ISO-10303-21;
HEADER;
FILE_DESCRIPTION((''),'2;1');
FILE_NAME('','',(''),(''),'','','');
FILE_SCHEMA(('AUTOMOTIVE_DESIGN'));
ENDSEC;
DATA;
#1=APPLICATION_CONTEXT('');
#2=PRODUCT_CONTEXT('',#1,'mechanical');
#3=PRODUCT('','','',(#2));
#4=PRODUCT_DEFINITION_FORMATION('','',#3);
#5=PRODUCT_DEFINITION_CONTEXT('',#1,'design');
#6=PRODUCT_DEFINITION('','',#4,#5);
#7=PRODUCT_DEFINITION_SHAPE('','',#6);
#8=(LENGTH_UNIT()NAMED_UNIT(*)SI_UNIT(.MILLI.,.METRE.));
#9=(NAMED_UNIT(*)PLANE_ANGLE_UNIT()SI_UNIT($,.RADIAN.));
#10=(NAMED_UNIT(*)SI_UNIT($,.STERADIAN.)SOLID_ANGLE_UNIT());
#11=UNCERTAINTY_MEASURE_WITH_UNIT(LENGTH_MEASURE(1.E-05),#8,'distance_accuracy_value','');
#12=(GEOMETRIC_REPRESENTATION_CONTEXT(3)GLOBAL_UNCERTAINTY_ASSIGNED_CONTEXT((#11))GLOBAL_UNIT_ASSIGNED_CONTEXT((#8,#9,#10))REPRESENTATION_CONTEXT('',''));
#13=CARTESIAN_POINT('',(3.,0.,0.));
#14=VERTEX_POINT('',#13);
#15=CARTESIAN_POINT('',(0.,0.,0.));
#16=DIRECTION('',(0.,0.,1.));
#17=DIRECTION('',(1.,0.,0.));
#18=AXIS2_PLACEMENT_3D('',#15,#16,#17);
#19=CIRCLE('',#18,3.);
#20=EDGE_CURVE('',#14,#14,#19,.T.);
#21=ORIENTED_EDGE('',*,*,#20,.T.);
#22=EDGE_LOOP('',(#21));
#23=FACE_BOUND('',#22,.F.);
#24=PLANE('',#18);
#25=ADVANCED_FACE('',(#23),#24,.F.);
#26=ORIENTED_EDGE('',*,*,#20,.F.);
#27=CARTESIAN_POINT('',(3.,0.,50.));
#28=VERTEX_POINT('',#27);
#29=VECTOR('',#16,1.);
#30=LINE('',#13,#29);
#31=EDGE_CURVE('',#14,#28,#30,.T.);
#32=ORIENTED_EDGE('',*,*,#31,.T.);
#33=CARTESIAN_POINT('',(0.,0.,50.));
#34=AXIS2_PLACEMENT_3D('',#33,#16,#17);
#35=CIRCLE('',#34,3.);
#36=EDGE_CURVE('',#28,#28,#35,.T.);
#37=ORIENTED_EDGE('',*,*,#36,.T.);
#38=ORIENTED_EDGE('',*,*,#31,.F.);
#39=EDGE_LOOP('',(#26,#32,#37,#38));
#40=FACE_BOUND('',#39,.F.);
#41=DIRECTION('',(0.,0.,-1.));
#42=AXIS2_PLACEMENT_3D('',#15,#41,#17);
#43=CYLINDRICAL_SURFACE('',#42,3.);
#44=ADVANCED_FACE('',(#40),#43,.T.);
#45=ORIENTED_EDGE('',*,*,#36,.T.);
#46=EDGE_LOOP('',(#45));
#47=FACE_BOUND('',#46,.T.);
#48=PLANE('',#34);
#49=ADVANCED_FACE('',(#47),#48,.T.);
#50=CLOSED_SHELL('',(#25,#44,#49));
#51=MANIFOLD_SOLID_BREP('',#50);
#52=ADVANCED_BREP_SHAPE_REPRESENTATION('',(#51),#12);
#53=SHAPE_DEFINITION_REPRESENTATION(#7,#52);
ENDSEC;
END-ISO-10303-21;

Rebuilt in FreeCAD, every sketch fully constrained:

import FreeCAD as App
import Part
import Sketcher

doc = App.newDocument("Part")
params = doc.addObject("Spreadsheet::Sheet", "Params")
for row, (alias, value) in enumerate([
    ("sketch1_diameter", "6 mm"),
    ("pad1_length", "50 mm"),
], start=1):
    params.set(f"A{row}", alias)
    params.set(f"B{row}", "=" + value)
    params.setAlias(f"B{row}", alias)

body = doc.addObject("PartDesign::Body", "Body")

# Sketch on XY plane
sketch1 = body.newObject("Sketcher::SketchObject", "Sketch")
sketch1.AttachmentSupport = (doc.getObject("XY_Plane"), [""])
sketch1.MapMode = "FlatFace"
sketch1.addGeometry(Part.Circle(App.Vector(0, 0, 0), App.Vector(0, 0, 1), 3), False)
sketch1.addConstraint([
    Sketcher.Constraint("Coincident", 0, 3, -1, 1),
    Sketcher.Constraint("Diameter", 0, 6.0),
])
sketch1.setExpression("Constraints[1]", "Params.sketch1_diameter")
pad1 = body.newObject("PartDesign::Pad", "Pad")
pad1.Profile = sketch1
pad1.setExpression("Length", "Params.pad1_length")

doc.recompute()
